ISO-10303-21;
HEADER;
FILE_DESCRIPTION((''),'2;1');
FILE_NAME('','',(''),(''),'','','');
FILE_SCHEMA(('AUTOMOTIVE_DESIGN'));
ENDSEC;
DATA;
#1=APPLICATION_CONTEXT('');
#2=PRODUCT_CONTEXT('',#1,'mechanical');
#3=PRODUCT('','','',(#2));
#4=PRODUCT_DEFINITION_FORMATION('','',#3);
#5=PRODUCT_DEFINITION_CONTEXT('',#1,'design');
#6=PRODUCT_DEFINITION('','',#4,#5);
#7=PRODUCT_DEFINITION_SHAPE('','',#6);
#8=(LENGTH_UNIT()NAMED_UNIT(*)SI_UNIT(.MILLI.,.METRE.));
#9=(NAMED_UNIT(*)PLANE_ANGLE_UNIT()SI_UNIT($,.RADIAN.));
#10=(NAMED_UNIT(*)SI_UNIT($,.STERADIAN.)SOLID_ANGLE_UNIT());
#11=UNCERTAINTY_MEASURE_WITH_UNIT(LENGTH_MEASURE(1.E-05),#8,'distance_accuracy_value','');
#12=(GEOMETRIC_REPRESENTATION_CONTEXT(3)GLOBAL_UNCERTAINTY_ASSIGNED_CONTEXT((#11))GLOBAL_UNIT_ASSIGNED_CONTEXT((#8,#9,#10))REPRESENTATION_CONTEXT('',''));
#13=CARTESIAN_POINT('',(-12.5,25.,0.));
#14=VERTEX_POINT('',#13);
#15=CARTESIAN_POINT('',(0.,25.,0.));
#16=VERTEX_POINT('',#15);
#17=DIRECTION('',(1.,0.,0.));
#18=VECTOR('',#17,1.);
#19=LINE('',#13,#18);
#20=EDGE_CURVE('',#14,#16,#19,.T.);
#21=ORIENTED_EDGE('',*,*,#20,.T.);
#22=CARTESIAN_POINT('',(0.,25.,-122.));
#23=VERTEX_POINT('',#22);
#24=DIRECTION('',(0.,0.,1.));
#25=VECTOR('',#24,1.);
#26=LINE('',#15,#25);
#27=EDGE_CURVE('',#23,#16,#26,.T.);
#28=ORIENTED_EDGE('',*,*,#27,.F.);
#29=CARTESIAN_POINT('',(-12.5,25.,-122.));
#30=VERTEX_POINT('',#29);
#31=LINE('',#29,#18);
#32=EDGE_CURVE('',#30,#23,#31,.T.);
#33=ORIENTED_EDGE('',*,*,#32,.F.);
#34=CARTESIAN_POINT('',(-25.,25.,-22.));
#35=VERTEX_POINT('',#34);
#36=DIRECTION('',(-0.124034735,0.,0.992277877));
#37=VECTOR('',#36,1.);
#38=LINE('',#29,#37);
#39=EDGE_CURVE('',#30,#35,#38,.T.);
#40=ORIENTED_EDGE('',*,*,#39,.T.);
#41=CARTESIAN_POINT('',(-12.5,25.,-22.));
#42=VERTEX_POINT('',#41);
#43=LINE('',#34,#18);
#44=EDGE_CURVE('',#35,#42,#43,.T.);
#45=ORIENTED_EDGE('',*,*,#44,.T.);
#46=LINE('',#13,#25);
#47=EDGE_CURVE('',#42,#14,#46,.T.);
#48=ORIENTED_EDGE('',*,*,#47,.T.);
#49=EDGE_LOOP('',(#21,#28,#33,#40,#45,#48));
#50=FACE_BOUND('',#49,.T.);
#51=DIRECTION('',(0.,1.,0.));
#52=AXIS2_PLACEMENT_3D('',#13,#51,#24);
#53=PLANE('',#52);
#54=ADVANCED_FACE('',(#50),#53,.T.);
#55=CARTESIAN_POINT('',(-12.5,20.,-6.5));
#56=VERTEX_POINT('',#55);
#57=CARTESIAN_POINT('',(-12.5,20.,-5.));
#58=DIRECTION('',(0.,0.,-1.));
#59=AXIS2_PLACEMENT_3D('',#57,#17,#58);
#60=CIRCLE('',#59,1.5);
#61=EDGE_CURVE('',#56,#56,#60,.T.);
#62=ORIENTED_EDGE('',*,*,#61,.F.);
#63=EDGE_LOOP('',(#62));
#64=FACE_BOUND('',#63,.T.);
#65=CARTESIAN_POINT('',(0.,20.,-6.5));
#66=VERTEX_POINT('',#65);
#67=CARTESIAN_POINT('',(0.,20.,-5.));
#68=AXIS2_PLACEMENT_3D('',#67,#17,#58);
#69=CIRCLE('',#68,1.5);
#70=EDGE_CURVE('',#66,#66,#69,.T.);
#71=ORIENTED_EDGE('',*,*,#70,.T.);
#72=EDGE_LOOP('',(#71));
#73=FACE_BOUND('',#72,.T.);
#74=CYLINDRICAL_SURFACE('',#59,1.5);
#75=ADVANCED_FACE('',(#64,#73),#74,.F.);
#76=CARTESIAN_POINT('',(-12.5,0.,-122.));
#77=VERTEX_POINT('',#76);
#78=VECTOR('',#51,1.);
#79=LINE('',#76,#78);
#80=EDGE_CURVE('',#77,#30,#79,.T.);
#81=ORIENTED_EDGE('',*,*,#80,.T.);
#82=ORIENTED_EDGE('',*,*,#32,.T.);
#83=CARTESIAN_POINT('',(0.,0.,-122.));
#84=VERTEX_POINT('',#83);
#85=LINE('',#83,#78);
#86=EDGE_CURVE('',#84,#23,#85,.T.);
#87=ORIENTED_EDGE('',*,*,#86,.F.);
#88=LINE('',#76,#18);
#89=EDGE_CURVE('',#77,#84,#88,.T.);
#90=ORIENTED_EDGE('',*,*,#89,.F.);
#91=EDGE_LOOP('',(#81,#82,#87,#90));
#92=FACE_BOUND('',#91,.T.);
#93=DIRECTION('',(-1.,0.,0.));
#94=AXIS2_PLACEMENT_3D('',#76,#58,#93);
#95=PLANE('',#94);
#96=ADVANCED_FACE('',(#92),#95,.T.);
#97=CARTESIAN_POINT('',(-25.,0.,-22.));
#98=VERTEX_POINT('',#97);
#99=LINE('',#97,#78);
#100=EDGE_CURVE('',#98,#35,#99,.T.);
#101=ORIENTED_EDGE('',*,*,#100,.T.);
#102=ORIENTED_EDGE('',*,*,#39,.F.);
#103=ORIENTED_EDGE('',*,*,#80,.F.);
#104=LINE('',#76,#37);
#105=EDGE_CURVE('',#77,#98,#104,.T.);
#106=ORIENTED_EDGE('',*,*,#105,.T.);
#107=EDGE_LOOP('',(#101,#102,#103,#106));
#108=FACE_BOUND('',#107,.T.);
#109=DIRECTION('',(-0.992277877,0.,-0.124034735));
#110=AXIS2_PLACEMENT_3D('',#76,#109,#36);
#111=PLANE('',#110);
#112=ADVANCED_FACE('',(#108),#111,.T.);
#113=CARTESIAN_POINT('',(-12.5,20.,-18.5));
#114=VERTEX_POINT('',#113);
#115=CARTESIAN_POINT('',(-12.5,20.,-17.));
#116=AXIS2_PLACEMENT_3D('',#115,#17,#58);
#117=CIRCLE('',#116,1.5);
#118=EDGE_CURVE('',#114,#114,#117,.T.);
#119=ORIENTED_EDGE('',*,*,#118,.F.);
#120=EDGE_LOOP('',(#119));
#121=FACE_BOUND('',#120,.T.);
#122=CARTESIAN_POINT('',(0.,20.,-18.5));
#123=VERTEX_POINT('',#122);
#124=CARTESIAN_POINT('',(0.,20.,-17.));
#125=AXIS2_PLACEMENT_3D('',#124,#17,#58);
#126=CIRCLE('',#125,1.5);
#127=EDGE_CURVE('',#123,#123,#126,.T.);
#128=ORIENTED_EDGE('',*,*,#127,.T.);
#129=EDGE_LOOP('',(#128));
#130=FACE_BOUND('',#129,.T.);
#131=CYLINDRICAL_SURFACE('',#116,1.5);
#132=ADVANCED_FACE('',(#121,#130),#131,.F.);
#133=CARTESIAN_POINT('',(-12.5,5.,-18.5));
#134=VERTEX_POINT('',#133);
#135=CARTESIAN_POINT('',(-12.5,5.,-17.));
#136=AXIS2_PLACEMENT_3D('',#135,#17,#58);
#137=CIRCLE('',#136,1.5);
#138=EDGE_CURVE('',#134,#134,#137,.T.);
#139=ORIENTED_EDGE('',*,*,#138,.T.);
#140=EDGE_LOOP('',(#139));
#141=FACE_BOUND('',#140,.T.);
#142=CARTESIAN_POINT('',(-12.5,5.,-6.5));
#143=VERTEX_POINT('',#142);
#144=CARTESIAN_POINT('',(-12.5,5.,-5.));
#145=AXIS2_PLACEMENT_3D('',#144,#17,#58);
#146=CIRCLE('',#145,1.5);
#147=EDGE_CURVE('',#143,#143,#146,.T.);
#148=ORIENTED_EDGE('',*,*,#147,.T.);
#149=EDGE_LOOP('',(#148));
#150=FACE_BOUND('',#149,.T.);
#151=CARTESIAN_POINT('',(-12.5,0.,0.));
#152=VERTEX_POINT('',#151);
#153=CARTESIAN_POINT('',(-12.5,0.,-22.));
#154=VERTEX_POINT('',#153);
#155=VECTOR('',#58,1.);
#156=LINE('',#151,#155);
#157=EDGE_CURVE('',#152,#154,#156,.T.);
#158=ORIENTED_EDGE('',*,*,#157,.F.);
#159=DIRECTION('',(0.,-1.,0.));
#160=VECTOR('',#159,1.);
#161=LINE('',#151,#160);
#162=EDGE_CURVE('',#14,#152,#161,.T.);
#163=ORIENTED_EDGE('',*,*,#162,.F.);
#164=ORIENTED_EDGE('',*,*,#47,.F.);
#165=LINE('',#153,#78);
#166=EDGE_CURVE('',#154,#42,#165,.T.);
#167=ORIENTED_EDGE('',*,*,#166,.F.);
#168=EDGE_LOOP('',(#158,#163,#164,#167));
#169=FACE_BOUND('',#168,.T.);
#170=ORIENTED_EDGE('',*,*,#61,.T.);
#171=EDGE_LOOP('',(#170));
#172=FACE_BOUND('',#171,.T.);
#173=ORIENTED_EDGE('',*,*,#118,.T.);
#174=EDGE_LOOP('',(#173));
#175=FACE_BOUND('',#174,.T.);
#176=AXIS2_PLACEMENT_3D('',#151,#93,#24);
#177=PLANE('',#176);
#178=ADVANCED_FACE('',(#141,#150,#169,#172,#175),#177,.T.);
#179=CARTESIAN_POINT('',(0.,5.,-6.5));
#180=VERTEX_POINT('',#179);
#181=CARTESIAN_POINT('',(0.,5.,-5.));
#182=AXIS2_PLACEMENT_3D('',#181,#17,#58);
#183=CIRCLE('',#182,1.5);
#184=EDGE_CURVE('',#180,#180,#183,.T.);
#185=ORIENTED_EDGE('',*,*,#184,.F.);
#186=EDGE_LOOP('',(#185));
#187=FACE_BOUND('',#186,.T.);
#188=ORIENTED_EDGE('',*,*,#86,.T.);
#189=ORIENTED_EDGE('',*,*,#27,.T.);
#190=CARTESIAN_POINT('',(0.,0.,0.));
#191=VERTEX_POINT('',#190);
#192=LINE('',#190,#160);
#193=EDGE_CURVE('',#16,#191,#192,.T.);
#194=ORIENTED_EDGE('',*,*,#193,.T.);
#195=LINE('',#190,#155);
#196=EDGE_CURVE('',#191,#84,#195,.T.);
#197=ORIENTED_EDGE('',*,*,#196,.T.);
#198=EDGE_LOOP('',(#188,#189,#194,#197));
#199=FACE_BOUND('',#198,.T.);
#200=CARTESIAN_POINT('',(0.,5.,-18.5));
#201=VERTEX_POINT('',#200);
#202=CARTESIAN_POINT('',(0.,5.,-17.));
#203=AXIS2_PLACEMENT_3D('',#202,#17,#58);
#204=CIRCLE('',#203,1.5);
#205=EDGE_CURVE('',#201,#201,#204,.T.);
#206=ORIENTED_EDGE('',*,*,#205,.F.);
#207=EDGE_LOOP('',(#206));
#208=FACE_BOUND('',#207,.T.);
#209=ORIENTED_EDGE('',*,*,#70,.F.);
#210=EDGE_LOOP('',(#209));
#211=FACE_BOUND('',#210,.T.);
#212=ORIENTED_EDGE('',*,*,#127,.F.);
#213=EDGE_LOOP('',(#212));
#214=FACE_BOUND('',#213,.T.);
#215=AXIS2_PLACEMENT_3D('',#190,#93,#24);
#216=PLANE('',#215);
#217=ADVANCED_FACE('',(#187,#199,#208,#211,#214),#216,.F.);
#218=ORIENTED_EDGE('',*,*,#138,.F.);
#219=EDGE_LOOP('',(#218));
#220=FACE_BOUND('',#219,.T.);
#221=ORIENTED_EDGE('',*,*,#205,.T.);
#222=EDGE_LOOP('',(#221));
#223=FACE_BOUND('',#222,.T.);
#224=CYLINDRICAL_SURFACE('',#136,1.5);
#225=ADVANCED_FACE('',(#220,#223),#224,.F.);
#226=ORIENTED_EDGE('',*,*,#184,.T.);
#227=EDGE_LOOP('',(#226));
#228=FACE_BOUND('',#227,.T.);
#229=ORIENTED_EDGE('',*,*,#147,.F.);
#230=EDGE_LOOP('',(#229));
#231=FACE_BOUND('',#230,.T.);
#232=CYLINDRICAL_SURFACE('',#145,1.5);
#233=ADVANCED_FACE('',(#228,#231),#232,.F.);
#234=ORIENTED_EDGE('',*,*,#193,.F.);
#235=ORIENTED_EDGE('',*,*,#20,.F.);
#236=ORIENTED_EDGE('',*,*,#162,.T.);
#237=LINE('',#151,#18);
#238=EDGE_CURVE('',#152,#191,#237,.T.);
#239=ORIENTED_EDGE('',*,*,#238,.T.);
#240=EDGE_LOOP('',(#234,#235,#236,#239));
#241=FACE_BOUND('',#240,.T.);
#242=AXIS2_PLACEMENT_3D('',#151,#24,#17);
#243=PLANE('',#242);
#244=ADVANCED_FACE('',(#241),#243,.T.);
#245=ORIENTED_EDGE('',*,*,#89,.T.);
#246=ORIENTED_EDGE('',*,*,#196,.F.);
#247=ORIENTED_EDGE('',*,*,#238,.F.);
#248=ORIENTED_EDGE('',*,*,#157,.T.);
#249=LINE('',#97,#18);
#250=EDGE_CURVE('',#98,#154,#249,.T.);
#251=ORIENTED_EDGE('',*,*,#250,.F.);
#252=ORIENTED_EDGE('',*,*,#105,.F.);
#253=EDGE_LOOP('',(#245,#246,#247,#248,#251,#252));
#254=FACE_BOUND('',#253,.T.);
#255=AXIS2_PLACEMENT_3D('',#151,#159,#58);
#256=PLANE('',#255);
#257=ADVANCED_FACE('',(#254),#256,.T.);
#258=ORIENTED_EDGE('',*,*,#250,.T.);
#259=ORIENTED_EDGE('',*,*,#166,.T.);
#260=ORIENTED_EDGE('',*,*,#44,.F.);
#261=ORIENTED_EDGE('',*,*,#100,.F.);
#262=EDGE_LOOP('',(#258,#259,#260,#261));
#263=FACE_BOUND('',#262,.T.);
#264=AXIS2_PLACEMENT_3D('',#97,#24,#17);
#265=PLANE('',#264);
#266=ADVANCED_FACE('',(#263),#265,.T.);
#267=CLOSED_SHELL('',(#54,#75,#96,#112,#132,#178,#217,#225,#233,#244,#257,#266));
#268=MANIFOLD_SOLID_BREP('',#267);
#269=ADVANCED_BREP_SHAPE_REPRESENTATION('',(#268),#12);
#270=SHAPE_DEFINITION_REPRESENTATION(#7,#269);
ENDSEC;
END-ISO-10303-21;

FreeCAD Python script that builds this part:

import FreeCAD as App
import Part
import Sketcher

V = App.Vector


def add_polygon(sketch, points):
    """Adds a closed chain of lines whose ends are joined by coincident constraints."""
    first, n = sketch.GeometryCount, len(points)
    for a, b in zip(points, points[1:] + points[:1]):
        sketch.addGeometry(Part.LineSegment(App.Vector(*a, 0), App.Vector(*b, 0)), False)
    for i in range(n):
        sketch.addConstraint(Sketcher.Constraint("Coincident", first + i, 2, first + (i + 1) % n, 1))

doc = App.newDocument("Part")
body = doc.addObject("PartDesign::Body", "Body")

# Sketch on YZ plane
sketch1 = body.newObject("Sketcher::SketchObject", "Sketch")
sketch1.AttachmentSupport = (doc.getObject("YZ_Plane"), [""])
sketch1.MapMode = "FlatFace"
add_polygon(sketch1, [(25, 0), (0, 0), (0, -122), (25, -122)])  # lines 0-3
sketch1.addGeometry(Part.Circle(V(5, -5, 0), V(0, 0, 1), 1.5), False)  # 4
sketch1.addGeometry(Part.Circle(V(5, -17, 0), V(0, 0, 1), 1.5), False)  # 5
sketch1.addGeometry(Part.Circle(V(20, -5, 0), V(0, 0, 1), 1.5), False)  # 6
sketch1.addGeometry(Part.Circle(V(20, -17, 0), V(0, 0, 1), 1.5), False)  # 7
sketch1.addConstraint([
    Sketcher.Constraint("Horizontal", 0),
    Sketcher.Constraint("Vertical", 1),
    Sketcher.Constraint("Horizontal", 2),
    Sketcher.Constraint("Vertical", 3),
    Sketcher.Constraint("Coincident", 0, 2, -1, 1),
    Sketcher.Constraint("Equal", 4, 5),
    Sketcher.Constraint("Equal", 5, 6),
    Sketcher.Constraint("Equal", 6, 7),
    Sketcher.Constraint("Horizontal", 4, 3, 6, 3),
    Sketcher.Constraint("Horizontal", 5, 3, 7, 3),
    Sketcher.Constraint("Vertical", 4, 3, 5, 3),
    Sketcher.Constraint("Vertical", 6, 3, 7, 3),
    Sketcher.Constraint("Diameter", 4, 3.0),
    Sketcher.Constraint("DistanceX", 0, 2, 0, 1, 25.0),
    Sketcher.Constraint("DistanceY", 1, 2, 1, 1, 122.0),
    Sketcher.Constraint("DistanceX", -1, 1, 4, 3, 5.0),
    Sketcher.Constraint("DistanceY", 4, 3, -1, 1, 5.0),
    Sketcher.Constraint("DistanceY", 5, 3, -1, 1, 17.0),
    Sketcher.Constraint("DistanceX", -1, 1, 6, 3, 20.0),
])
pad1 = body.newObject("PartDesign::Pad", "Pad")
pad1.Profile = sketch1
pad1.Length = 12.5
pad1.Reversed = True

# Sketch on XZ plane
sketch2 = body.newObject("Sketcher::SketchObject", "Sketch001")
sketch2.AttachmentSupport = (doc.getObject("XZ_Plane"), [""])
sketch2.MapMode = "FlatFace"
sketch2.AttachmentOffset = App.Placement(V(0, 0, -25), App.Rotation())
add_polygon(sketch2, [(-12.5, -122), (-25, -22), (-12.5, -22)])  # lines 0-2
sketch2.addConstraint([
    Sketcher.Constraint("Horizontal", 1),
    Sketcher.Constraint("Vertical", 2),
    Sketcher.Constraint("DistanceY", 2, 2, 2, 1, 100.0),
    Sketcher.Constraint("DistanceX", 1, 1, 1, 2, 12.5),
    Sketcher.Constraint("DistanceX", 0, 2, -1, 1, 25.0),
    Sketcher.Constraint("DistanceY", 0, 2, -1, 1, 22.0),
])
pad2 = body.newObject("PartDesign::Pad", "Pad001")
pad2.Profile = sketch2
pad2.Length = 25

doc.recompute()
